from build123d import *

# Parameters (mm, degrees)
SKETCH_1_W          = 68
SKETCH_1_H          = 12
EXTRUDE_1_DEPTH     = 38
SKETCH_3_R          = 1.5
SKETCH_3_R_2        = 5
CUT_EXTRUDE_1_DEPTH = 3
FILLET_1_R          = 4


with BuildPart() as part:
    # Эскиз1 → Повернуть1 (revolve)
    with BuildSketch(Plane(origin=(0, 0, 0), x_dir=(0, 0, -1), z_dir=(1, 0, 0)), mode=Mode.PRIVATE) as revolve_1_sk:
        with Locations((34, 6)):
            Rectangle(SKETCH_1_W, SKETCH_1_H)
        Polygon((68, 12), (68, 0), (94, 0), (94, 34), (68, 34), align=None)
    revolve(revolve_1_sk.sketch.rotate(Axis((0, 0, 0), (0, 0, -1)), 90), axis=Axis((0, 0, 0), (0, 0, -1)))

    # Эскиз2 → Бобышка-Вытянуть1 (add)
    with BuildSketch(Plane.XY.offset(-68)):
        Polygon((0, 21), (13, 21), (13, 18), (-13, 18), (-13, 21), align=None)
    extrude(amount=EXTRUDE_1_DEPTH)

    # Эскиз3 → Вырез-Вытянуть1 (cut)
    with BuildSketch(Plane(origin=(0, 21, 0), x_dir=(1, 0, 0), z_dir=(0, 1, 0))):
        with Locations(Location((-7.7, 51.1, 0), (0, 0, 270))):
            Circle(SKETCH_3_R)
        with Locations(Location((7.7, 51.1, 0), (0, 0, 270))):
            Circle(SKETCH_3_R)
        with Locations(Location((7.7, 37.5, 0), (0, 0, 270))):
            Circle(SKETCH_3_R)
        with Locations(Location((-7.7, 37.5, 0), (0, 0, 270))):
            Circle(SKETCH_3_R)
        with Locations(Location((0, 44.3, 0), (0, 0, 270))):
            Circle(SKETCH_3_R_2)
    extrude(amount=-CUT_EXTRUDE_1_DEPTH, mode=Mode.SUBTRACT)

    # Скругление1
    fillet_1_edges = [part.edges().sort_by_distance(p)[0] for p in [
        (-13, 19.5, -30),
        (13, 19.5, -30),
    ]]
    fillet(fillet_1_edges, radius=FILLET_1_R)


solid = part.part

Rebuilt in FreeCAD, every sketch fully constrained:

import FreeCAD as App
import Part
import Sketcher
Q = App.Units.Quantity


def edges_at(feature, points):
    """Names of the edges that pass closest to the given points."""
    edges = feature.Shape.Edges
    near = lambda p: min(range(len(edges)), key=lambda i: edges[i].distToShape(Part.Vertex(*p))[0])
    return sorted({f"Edge{near(p) + 1}" for p in points})


def add_polygon(sketch, points):
    """Adds a closed chain of lines whose ends are joined by coincident constraints."""
    first, n = sketch.GeometryCount, len(points)
    for a, b in zip(points, points[1:] + points[:1]):
        sketch.addGeometry(Part.LineSegment(App.Vector(*a, 0), App.Vector(*b, 0)), False)
    for i in range(n):
        sketch.addConstraint(Sketcher.Constraint("Coincident", first + i, 2, first + (i + 1) % n, 1))

doc = App.newDocument("Part")
params = doc.addObject("Spreadsheet::Sheet", "Params")
for row, (alias, value) in enumerate([
    ("sketch1_width", "12 mm"),
    ("sketch1_width2", "34 mm"),
    ("sketch1_height", "94 mm"),
    ("sketch1_height2", "26 mm"),
    ("revolution_angle", "360 deg"),
    ("sketch2_width", "26 mm"),
    ("sketch2_height", "3 mm"),
    ("pad1_length", "38 mm"),
    ("sketch3_diameter", "3 mm"),
    ("sketch3_diameter2", "10 mm"),
    ("pocket1_length", "3 mm"),
    ("fillet_radius", "4 mm"),
], start=1):
    params.set(f"A{row}", alias)
    params.set(f"B{row}", "=" + value)
    params.setAlias(f"B{row}", alias)

body = doc.addObject("PartDesign::Body", "Body")

# Sketch on YZ plane
sketch1 = doc.addObject("Sketcher::SketchObject", "Sketch")
body.addObject(sketch1)
sketch1.AttachmentSupport = (doc.YZ_Plane, [""])
sketch1.MapMode = "FlatFace"
add_polygon(sketch1, [(12, 0), (0, 0), (0, -94), (34, -94), (34, -68), (12, -68)])  # lines 0-5
sketch1.addConstraint(Sketcher.Constraint("Horizontal", 0))
sketch1.addConstraint(Sketcher.Constraint("Vertical", 1))
sketch1.addConstraint(Sketcher.Constraint("Horizontal", 2))
sketch1.addConstraint(Sketcher.Constraint("Vertical", 3))
sketch1.addConstraint(Sketcher.Constraint("Horizontal", 4))
sketch1.addConstraint(Sketcher.Constraint("Vertical", 5))
sketch1.addConstraint(Sketcher.Constraint("Coincident", 0, 2, -1, 1))
sketch1.addConstraint(Sketcher.Constraint("DistanceX", 0, 2, 0, 1, Q("12 mm")))
sketch1.addConstraint(Sketcher.Constraint("DistanceX", 2, 1, 2, 2, Q("34 mm")))
sketch1.addConstraint(Sketcher.Constraint("DistanceY", 1, 2, 1, 1, Q("94 mm")))
sketch1.addConstraint(Sketcher.Constraint("DistanceY", 3, 1, 3, 2, Q("26 mm")))
sketch1.setExpression("Constraints[13]", "Params.sketch1_width")
sketch1.setExpression("Constraints[14]", "Params.sketch1_width2")
sketch1.setExpression("Constraints[15]", "Params.sketch1_height")
sketch1.setExpression("Constraints[16]", "Params.sketch1_height2")
revolution = doc.addObject("PartDesign::Revolution", "Revolution")
body.addObject(revolution)
revolution.Profile = sketch1
revolution.ReferenceAxis = (sketch1, ["V_Axis"])
revolution.setExpression("Angle", "Params.revolution_angle")

# Sketch on XY plane
sketch2 = doc.addObject("Sketcher::SketchObject", "Sketch001")
body.addObject(sketch2)
sketch2.AttachmentSupport = (doc.XY_Plane, [""])
sketch2.MapMode = "FlatFace"
sketch2.AttachmentOffset = App.Placement(App.Vector(0, 0, -68), App.Rotation())
add_polygon(sketch2, [(13, 21), (-13, 21), (-13, 18), (13, 18)])  # lines 0-3
sketch2.addConstraint(Sketcher.Constraint("Horizontal", 0))
sketch2.addConstraint(Sketcher.Constraint("Vertical", 1))
sketch2.addConstraint(Sketcher.Constraint("Horizontal", 2))
sketch2.addConstraint(Sketcher.Constraint("Vertical", 3))
sketch2.addConstraint(Sketcher.Constraint("DistanceX", 0, 2, 0, 1, Q("26 mm")))
sketch2.addConstraint(Sketcher.Constraint("DistanceY", 1, 2, 1, 1, Q("3 mm")))
sketch2.addConstraint(Sketcher.Constraint("DistanceX", 0, 2, -1, 1, Q("13 mm")))
sketch2.addConstraint(Sketcher.Constraint("DistanceY", -1, 1, 0, 2, Q("21 mm")))
sketch2.setExpression("Constraints[8]", "Params.sketch2_width")
sketch2.setExpression("Constraints[9]", "Params.sketch2_height")
pad1 = doc.addObject("PartDesign::Pad", "Pad")
body.addObject(pad1)
pad1.Profile = sketch2
pad1.setExpression("Length", "Params.pad1_length")

# Sketch on XZ plane
sketch3 = doc.addObject("Sketcher::SketchObject", "Sketch002")
body.addObject(sketch3)
sketch3.AttachmentSupport = (doc.XZ_Plane, [""])
sketch3.MapMode = "FlatFace"
sketch3.AttachmentOffset = App.Placement(App.Vector(0, 0, -21), App.Rotation())
sketch3.addGeometry(Part.Circle(App.Vector(-7.7, -51.1, 0), App.Vector(0, 0, 1), 1.5), False)
sketch3.addGeometry(Part.Circle(App.Vector(7.7, -51.1, 0), App.Vector(0, 0, 1), 1.5), False)
sketch3.addGeometry(Part.Circle(App.Vector(7.7, -37.5, 0), App.Vector(0, 0, 1), 1.5), False)
sketch3.addGeometry(Part.Circle(App.Vector(-7.7, -37.5, 0), App.Vector(0, 0, 1), 1.5), False)
sketch3.addGeometry(Part.Circle(App.Vector(0, -44.3, 0), App.Vector(0, 0, 1), 5), False)
sketch3.addConstraint(Sketcher.Constraint("Equal", 0, 1))
sketch3.addConstraint(Sketcher.Constraint("Equal", 1, 2))
sketch3.addConstraint(Sketcher.Constraint("Equal", 2, 3))
sketch3.addConstraint(Sketcher.Constraint("Symmetric", 0, 3, 1, 3, -2))
sketch3.addConstraint(Sketcher.Constraint("Symmetric", 2, 3, 3, 3, -2))
sketch3.addConstraint(Sketcher.Constraint("PointOnObject", 4, 3, -2))
sketch3.addConstraint(Sketcher.Constraint("Vertical", 1, 3, 2, 3))
sketch3.addConstraint(Sketcher.Constraint("Diameter", 0, Q("3 mm")))
sketch3.addConstraint(Sketcher.Constraint("Diameter", 4, Q("10 mm")))
sketch3.addConstraint(Sketcher.Constraint("DistanceX", 0, 3, -1, 1, Q("7.7 mm")))
sketch3.addConstraint(Sketcher.Constraint("DistanceY", 0, 3, -1, 1, Q("51.1 mm")))
sketch3.addConstraint(Sketcher.Constraint("DistanceY", 2, 3, -1, 1, Q("37.5 mm")))
sketch3.addConstraint(Sketcher.Constraint("DistanceY", 4, 3, -1, 1, Q("44.3 mm")))
sketch3.setExpression("Constraints[7]", "Params.sketch3_diameter")
sketch3.setExpression("Constraints[8]", "Params.sketch3_diameter2")
pocket1 = doc.addObject("PartDesign::Pocket", "Pocket")
body.addObject(pocket1)
pocket1.Profile = sketch3
pocket1.setExpression("Length", "Params.pocket1_length")
pocket1.Reversed = True
doc.recompute()

fillet = doc.addObject("PartDesign::Fillet", "Fillet")
body.addObject(fillet)
fillet.Base = (pocket1, edges_at(pocket1, [(-13, 19.5, -30), (13, 19.5, -30)]))
fillet.setExpression("Radius", "Params.fillet_radius")

doc.recompute()
